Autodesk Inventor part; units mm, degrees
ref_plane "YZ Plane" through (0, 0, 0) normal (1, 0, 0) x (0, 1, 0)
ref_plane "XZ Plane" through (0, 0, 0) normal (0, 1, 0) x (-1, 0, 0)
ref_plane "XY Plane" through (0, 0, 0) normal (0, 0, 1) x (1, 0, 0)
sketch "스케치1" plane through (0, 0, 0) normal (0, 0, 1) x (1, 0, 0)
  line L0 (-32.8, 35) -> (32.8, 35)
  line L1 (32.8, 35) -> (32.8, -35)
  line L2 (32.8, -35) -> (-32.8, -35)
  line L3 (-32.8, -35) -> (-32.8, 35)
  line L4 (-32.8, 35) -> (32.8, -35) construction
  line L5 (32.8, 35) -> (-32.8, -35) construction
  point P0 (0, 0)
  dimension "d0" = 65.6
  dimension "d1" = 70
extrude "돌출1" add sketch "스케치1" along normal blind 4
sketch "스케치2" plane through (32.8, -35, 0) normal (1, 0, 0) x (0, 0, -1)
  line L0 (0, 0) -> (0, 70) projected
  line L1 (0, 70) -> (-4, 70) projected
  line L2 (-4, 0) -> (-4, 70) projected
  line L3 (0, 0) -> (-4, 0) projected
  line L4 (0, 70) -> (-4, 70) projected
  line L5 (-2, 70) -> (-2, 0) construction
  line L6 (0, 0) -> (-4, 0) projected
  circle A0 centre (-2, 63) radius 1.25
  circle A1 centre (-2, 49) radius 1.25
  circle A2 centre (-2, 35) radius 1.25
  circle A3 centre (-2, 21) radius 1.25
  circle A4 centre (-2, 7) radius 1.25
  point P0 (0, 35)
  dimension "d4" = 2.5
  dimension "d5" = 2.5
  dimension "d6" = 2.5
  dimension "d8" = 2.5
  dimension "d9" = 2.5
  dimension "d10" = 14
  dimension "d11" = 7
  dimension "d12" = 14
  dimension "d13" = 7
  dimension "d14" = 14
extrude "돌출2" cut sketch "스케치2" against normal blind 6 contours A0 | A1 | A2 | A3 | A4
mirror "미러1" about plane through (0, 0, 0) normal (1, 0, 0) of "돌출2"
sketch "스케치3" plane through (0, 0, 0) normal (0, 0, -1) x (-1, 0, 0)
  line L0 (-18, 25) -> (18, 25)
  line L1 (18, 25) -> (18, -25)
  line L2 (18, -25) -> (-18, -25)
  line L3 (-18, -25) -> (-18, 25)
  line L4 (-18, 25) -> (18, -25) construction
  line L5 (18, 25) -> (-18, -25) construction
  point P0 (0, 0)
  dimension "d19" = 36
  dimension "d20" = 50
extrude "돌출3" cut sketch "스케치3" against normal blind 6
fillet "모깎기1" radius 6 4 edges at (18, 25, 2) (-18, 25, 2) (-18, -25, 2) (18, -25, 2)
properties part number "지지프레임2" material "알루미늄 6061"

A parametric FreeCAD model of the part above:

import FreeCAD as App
import Part
import Sketcher

V = App.Vector
Q = App.Units.Quantity


def edges_at(feature, points):
    """Names of the edges that pass closest to the given points."""
    edges = feature.Shape.Edges
    near = lambda p: min(range(len(edges)), key=lambda i: edges[i].distToShape(Part.Vertex(*p))[0])
    return sorted({f"Edge{near(p) + 1}" for p in points})


def add_polygon(sketch, points):
    """Adds a closed chain of lines whose ends are joined by coincident constraints."""
    first, n = sketch.GeometryCount, len(points)
    for a, b in zip(points, points[1:] + points[:1]):
        sketch.addGeometry(Part.LineSegment(App.Vector(*a, 0), App.Vector(*b, 0)), False)
    for i in range(n):
        sketch.addConstraint(Sketcher.Constraint("Coincident", first + i, 2, first + (i + 1) % n, 1))

doc = App.newDocument("Part")
body = doc.addObject("PartDesign::Body", "Body")

# Sketch on XY plane
sketch1 = body.newObject("Sketcher::SketchObject", "Sketch")
sketch1.AttachmentSupport = (doc.getObject("XY_Plane"), [""])
sketch1.MapMode = "FlatFace"
add_polygon(sketch1, [(33, 35), (-33, 35), (-33, -35), (33, -35)])  # lines 0-3
sketch1.addConstraint(Sketcher.Constraint("Horizontal", 0))
sketch1.addConstraint(Sketcher.Constraint("Vertical", 1))
sketch1.addConstraint(Sketcher.Constraint("Horizontal", 2))
sketch1.addConstraint(Sketcher.Constraint("Vertical", 3))
sketch1.addConstraint(Sketcher.Constraint("Symmetric", 0, 2, 2, 2, -1, 1))
sketch1.addConstraint(Sketcher.Constraint("DistanceY", 1, 2, 1, 1, Q("70 mm")))
sketch1.addConstraint(Sketcher.Constraint("DistanceX", 0, 2, 0, 1, Q("65.6 mm")))
pad1 = body.newObject("PartDesign::Pad", "Pad")
pad1.Profile = sketch1
pad1.Length = 4

# Sketch on YZ plane
sketch2 = body.newObject("Sketcher::SketchObject", "Sketch001")
sketch2.AttachmentSupport = (doc.getObject("YZ_Plane"), [""])
sketch2.MapMode = "FlatFace"
sketch2.AttachmentOffset = App.Placement(V(0, 0, 32.8), App.Rotation())
sketch2.addGeometry(Part.Circle(V(28, 2, 0), V(0, 0, 1), 1.2), False)
sketch2.addGeometry(Part.Circle(V(14, 2, 0), V(0, 0, 1), 1.2), False)
sketch2.addGeometry(Part.Circle(V(0, 2, 0), V(0, 0, 1), 1.2), False)
sketch2.addGeometry(Part.Circle(V(-14, 2, 0), V(0, 0, 1), 1.2), False)
sketch2.addGeometry(Part.Circle(V(-28, 2, 0), V(0, 0, 1), 1.2), False)
sketch2.addConstraint(Sketcher.Constraint("Equal", 0, 1))
sketch2.addConstraint(Sketcher.Constraint("Equal", 1, 2))
sketch2.addConstraint(Sketcher.Constraint("Equal", 2, 3))
sketch2.addConstraint(Sketcher.Constraint("Equal", 3, 4))
sketch2.addConstraint(Sketcher.Constraint("Symmetric", 1, 3, 3, 3, -2))
sketch2.addConstraint(Sketcher.Constraint("Symmetric", 0, 3, 4, 3, -2))
sketch2.addConstraint(Sketcher.Constraint("PointOnObject", 2, 3, -2))
sketch2.addConstraint(Sketcher.Constraint("Horizontal", 0, 3, 1, 3))
sketch2.addConstraint(Sketcher.Constraint("Horizontal", 1, 3, 2, 3))
sketch2.addConstraint(Sketcher.Constraint("Diameter", 0, Q("2.5 mm")))
sketch2.addConstraint(Sketcher.Constraint("DistanceX", -1, 1, 1, 3, Q("14 mm")))
sketch2.addConstraint(Sketcher.Constraint("DistanceX", 1, 3, 0, 3, Q("14 mm")))
sketch2.addConstraint(Sketcher.Constraint("DistanceY", -1, 1, 0, 3, Q("2 mm")))
pocket1 = body.newObject("PartDesign::Pocket", "Pocket")
pocket1.Profile = sketch2
pocket1.Length = 6
doc.recompute()

mirrored = body.newObject("PartDesign::Mirrored", "Mirrored")
mirrored.Originals = [pocket1]
mirrored.MirrorPlane = (doc.getObject("YZ_Plane"), [""])
body.Tip = mirrored

# Sketch on XY plane
sketch3 = body.newObject("Sketcher::SketchObject", "Sketch002")
sketch3.AttachmentSupport = (doc.getObject("XY_Plane"), [""])
sketch3.MapMode = "FlatFace"
add_polygon(sketch3, [(-18, 25), (18, 25), (18, -25), (-18, -25)])  # lines 0-3
sketch3.addConstraint(Sketcher.Constraint("Horizontal", 0))
sketch3.addConstraint(Sketcher.Constraint("Vertical", 1))
sketch3.addConstraint(Sketcher.Constraint("Horizontal", 2))
sketch3.addConstraint(Sketcher.Constraint("Vertical", 3))
sketch3.addConstraint(Sketcher.Constraint("Symmetric", 0, 2, 2, 2, -1, 1))
sketch3.addConstraint(Sketcher.Constraint("DistanceX", 0, 1, 0, 2, Q("36 mm")))
sketch3.addConstraint(Sketcher.Constraint("DistanceY", 1, 2, 1, 1, Q("50 mm")))
pocket2 = body.newObject("PartDesign::Pocket", "Pocket001")
pocket2.Profile = sketch3
pocket2.Length = 6
pocket2.Reversed = True
doc.recompute()

fillet = body.newObject("PartDesign::Fillet", "Fillet")
fillet.Base = (pocket2, edges_at(pocket2, [
    (18, 25, 2),
    (-18, 25, 2),
    (-18, -25, 2),
    (18, -25, 2),
]))
fillet.Radius = 6

doc.recompute()
